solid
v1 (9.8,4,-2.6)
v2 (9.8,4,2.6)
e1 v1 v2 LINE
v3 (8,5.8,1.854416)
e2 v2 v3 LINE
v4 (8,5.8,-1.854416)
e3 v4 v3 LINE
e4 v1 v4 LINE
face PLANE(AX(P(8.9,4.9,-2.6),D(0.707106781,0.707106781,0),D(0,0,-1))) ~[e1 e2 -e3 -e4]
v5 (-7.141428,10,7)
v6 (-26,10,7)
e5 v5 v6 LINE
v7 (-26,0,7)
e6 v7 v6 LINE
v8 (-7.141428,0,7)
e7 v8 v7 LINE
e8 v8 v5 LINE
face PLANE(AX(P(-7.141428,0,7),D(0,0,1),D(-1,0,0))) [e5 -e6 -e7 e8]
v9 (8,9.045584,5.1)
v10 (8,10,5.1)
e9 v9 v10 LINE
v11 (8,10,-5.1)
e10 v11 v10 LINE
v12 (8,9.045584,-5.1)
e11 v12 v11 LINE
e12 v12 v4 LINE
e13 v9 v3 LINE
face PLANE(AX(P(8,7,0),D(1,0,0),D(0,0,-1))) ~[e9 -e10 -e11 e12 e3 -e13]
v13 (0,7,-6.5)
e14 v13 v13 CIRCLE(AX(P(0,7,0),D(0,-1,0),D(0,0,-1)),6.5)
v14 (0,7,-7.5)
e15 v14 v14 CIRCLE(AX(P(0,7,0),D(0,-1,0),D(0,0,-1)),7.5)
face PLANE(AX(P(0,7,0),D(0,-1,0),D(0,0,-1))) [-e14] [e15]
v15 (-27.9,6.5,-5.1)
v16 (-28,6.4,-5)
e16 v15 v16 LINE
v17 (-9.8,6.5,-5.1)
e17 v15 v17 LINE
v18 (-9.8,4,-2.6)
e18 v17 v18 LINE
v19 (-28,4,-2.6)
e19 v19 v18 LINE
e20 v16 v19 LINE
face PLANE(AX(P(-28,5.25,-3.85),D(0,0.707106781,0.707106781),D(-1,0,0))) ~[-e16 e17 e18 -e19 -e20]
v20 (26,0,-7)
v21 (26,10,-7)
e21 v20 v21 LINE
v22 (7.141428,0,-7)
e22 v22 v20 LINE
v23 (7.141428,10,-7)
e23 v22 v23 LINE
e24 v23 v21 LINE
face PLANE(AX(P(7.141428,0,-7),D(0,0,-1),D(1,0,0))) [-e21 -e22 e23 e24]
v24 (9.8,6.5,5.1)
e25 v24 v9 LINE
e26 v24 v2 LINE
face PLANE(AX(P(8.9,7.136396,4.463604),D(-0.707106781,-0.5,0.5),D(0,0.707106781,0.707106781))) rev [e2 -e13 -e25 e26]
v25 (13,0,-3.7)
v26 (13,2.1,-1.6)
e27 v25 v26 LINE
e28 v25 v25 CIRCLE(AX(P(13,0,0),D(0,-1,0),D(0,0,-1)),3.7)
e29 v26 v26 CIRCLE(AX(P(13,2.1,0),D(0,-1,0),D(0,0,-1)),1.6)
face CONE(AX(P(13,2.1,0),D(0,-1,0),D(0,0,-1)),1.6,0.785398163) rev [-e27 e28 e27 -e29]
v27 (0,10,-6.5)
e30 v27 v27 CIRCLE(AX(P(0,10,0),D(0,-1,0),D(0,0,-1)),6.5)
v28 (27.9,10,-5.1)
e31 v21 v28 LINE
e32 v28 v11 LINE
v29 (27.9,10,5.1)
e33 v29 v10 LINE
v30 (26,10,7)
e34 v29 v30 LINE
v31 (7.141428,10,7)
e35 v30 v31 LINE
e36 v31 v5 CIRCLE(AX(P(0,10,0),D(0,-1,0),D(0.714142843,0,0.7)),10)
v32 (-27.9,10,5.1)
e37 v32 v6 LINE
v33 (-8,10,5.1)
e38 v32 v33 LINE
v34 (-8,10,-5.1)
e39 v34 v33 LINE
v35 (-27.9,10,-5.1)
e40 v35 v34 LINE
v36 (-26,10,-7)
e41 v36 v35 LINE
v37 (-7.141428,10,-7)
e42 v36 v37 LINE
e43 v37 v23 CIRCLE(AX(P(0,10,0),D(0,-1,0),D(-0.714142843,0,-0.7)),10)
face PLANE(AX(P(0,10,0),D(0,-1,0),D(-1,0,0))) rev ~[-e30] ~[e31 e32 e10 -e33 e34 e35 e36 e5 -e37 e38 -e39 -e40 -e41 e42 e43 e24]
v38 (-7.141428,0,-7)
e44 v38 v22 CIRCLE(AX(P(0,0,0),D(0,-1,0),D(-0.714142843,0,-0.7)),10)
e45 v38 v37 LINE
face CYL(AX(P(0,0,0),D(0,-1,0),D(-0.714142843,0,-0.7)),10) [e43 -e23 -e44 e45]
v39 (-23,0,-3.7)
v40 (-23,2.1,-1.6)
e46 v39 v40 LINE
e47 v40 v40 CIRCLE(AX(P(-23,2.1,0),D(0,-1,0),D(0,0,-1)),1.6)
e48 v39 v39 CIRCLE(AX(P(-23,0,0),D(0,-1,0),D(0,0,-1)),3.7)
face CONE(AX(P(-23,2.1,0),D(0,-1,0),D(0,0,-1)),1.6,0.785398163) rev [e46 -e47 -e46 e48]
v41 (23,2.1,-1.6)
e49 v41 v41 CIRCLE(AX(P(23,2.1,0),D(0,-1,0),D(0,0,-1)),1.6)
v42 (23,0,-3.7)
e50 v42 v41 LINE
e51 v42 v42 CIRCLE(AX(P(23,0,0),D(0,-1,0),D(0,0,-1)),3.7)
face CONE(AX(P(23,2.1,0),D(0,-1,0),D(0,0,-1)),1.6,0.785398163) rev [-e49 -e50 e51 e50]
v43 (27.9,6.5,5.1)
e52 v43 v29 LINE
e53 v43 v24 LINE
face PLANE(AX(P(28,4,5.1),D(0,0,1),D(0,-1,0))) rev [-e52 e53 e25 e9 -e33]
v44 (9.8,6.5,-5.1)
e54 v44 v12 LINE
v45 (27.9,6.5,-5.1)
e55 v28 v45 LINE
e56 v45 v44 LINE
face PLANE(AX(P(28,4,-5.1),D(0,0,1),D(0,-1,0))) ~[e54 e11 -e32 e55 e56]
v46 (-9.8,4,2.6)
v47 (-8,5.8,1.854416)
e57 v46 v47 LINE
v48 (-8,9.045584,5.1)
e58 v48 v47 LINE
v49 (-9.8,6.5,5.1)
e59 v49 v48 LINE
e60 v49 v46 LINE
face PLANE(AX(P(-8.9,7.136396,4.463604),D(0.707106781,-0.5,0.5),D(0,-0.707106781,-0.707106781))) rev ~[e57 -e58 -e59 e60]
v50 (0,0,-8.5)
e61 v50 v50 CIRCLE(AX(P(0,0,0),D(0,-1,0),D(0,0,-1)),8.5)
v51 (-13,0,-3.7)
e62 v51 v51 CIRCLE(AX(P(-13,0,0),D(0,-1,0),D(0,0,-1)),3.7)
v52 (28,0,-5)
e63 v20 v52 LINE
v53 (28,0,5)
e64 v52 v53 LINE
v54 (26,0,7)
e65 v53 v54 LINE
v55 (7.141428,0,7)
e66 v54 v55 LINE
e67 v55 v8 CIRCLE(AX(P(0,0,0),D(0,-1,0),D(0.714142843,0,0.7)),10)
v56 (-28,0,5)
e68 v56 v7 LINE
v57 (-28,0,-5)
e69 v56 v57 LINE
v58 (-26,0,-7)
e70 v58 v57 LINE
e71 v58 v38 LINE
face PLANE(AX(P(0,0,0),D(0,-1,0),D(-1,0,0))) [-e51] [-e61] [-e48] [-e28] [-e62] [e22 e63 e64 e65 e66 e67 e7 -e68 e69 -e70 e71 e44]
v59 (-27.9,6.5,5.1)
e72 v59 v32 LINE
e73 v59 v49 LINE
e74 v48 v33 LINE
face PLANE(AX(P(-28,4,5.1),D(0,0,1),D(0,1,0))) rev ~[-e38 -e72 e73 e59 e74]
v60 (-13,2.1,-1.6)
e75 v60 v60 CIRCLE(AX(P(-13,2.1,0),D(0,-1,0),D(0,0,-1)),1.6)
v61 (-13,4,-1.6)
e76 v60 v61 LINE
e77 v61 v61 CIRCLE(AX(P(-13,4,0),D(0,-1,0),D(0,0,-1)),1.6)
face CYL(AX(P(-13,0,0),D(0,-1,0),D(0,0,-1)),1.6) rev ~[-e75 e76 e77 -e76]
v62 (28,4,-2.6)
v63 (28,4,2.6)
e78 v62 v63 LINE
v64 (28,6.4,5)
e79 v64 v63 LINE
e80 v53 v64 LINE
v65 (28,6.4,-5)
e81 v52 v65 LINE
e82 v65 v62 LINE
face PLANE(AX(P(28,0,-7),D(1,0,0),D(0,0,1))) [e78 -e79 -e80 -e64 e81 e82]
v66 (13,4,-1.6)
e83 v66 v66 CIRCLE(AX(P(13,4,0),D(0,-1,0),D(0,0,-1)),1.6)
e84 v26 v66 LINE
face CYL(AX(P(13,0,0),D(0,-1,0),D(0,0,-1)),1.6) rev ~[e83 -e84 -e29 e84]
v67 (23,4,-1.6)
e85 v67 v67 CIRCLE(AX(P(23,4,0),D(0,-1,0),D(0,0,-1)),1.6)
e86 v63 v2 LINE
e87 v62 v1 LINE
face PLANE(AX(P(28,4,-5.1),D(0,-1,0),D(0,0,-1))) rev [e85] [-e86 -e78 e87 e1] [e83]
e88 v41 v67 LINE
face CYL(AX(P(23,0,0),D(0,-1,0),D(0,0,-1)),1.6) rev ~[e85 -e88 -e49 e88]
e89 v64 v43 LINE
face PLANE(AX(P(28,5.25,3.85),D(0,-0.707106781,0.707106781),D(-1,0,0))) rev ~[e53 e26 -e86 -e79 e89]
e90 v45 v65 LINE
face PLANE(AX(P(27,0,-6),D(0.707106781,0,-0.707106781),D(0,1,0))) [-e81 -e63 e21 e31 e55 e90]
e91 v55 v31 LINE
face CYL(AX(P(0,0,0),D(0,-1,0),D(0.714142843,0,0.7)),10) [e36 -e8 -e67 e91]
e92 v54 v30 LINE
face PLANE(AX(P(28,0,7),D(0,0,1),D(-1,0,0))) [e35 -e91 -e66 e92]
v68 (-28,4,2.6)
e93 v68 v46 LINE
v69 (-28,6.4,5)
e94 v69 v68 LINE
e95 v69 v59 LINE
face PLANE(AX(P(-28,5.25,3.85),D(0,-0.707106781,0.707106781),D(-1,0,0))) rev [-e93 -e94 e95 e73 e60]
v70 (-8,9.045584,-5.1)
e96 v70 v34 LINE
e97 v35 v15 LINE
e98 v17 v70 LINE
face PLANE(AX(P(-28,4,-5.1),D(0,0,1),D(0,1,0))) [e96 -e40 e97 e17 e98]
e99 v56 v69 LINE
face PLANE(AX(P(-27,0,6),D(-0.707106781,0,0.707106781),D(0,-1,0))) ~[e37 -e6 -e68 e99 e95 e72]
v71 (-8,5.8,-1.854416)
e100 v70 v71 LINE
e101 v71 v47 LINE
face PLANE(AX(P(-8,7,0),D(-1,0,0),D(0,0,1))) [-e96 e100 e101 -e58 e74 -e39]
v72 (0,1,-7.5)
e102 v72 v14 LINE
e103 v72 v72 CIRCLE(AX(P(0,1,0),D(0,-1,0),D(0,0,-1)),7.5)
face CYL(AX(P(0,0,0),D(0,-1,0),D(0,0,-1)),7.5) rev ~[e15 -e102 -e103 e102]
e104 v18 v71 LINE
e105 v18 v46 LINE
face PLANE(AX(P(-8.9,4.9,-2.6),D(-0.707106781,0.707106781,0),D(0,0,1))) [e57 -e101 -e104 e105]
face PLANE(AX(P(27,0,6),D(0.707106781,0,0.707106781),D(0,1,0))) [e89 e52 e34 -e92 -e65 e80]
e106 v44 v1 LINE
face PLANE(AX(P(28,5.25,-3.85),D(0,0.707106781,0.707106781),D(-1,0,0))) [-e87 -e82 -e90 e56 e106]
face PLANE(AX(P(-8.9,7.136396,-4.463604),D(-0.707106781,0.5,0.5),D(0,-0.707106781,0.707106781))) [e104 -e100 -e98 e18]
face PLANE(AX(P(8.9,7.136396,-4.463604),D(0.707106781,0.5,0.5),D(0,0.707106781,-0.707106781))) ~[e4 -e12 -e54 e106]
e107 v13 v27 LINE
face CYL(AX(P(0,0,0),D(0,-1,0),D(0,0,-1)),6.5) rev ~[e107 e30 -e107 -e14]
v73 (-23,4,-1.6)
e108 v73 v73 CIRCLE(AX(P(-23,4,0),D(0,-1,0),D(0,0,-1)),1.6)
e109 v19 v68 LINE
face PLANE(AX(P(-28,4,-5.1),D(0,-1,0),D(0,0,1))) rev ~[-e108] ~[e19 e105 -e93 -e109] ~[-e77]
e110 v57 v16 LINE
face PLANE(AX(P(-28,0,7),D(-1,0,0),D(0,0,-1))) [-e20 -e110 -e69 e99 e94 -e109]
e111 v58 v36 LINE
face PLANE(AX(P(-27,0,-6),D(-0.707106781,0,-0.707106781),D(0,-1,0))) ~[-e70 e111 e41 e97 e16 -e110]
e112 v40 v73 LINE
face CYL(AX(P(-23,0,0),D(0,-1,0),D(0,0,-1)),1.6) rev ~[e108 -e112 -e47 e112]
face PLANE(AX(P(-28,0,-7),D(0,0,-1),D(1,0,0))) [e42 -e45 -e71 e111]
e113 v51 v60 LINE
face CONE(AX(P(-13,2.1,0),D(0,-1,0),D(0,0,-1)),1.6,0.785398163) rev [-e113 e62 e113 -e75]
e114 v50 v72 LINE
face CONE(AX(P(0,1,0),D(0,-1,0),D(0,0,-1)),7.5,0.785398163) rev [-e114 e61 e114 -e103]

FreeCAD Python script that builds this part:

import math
import FreeCAD as App
import Part
import Sketcher


def edges_at(feature, points):
    """Names of the edges that pass closest to the given points."""
    edges = feature.Shape.Edges
    near = lambda p: min(range(len(edges)), key=lambda i: edges[i].distToShape(Part.Vertex(*p))[0])
    return sorted({f"Edge{near(p) + 1}" for p in points})


def add_polygon(sketch, points):
    """Adds a closed chain of lines whose ends are joined by coincident constraints."""
    first, n = sketch.GeometryCount, len(points)
    for a, b in zip(points, points[1:] + points[:1]):
        sketch.addGeometry(Part.LineSegment(App.Vector(*a, 0), App.Vector(*b, 0)), False)
    for i in range(n):
        sketch.addConstraint(Sketcher.Constraint("Coincident", first + i, 2, first + (i + 1) % n, 1))

doc = App.newDocument("Part")
params = doc.addObject("Spreadsheet::Sheet", "Params")
for row, (alias, value) in enumerate([
    ("sketch1_radius", "10 mm"),
    ("sketch1_height", "14 mm"),
    ("pad1_length", "10 mm"),
    ("sketch2_width", "6 mm"),
    ("sketch2_height", "10.2 mm"),
    ("pocket1_length", "20 mm"),
    ("chamfer_size", "2.5 mm"),
    ("chamfer2_size", "1.8 mm"),
    ("chamfer3_size", "2.5 mm"),
    ("chamfer4_size", "1.8 mm"),
    ("sketch3_diameter", "13 mm"),
    ("sketch4_diameter", "15 mm"),
    ("pocket3_length", "7 mm"),
    ("chamfer5_size", "1 mm"),
    ("sketch5_diameter", "3.2 mm"),
    ("pocket4_length", "7 mm"),
    ("chamfer6_size", "2.1 mm"),
    ("chamfer7_size", "2 mm"),
], start=1):
    params.set(f"A{row}", alias)
    params.set(f"B{row}", "=" + value)
    params.setAlias(f"B{row}", alias)

body = doc.addObject("PartDesign::Body", "Body")

# Sketch on XZ plane
sketch1 = doc.addObject("Sketcher::SketchObject", "Sketch")
body.addObject(sketch1)
sketch1.AttachmentSupport = (doc.XZ_Plane, [""])
sketch1.MapMode = "FlatFace"
sketch1.addGeometry(Part.LineSegment(App.Vector(28, -7, 0), App.Vector(7, -7, 0)), False)
sketch1.addGeometry(Part.ArcOfCircle(Part.Circle(App.Vector(0, 0, 0), App.Vector(0, 0, 1), 10), math.radians(-136), math.radians(-44)), False)
sketch1.addGeometry(Part.LineSegment(App.Vector(-7, -7, 0), App.Vector(-28, -7, 0)), False)
sketch1.addGeometry(Part.LineSegment(App.Vector(-28, -7, 0), App.Vector(-28, 7, 0)), False)
sketch1.addGeometry(Part.LineSegment(App.Vector(-28, 7, 0), App.Vector(-7, 7, 0)), False)
sketch1.addGeometry(Part.ArcOfCircle(Part.Circle(App.Vector(0, 0, 0), App.Vector(0, 0, 1), 10), math.radians(44), math.radians(136)), False)
sketch1.addGeometry(Part.LineSegment(App.Vector(7, 7, 0), App.Vector(28, 7, 0)), False)
sketch1.addGeometry(Part.LineSegment(App.Vector(28, 7, 0), App.Vector(28, -7, 0)), False)
sketch1.addConstraint(Sketcher.Constraint("Coincident", 0, 2, 1, 2))
sketch1.addConstraint(Sketcher.Constraint("Coincident", 1, 1, 2, 1))
sketch1.addConstraint(Sketcher.Constraint("Coincident", 2, 2, 3, 1))
sketch1.addConstraint(Sketcher.Constraint("Coincident", 3, 2, 4, 1))
sketch1.addConstraint(Sketcher.Constraint("Coincident", 4, 2, 5, 2))
sketch1.addConstraint(Sketcher.Constraint("Coincident", 5, 1, 6, 1))
sketch1.addConstraint(Sketcher.Constraint("Coincident", 6, 2, 7, 1))
sketch1.addConstraint(Sketcher.Constraint("Coincident", 7, 2, 0, 1))
sketch1.addConstraint(Sketcher.Constraint("Horizontal", 0))
sketch1.addConstraint(Sketcher.Constraint("Horizontal", 2))
sketch1.addConstraint(Sketcher.Constraint("Vertical", 3))
sketch1.addConstraint(Sketcher.Constraint("Horizontal", 4))
sketch1.addConstraint(Sketcher.Constraint("Horizontal", 6))
sketch1.addConstraint(Sketcher.Constraint("Vertical", 7))
sketch1.addConstraint(Sketcher.Constraint("Coincident", 1, 3, -1, 1))
sketch1.addConstraint(Sketcher.Constraint("Coincident", 5, 3, -1, 1))
sketch1.addConstraint(Sketcher.Constraint("Equal", 1, 5))
sketch1.addConstraint(Sketcher.Constraint("Symmetric", 2, 2, 6, 2, -1, 1))
sketch1.addConstraint(Sketcher.Constraint("Horizontal", 0, 2, 1, 1))
sketch1.addConstraint(Sketcher.Constraint("Horizontal", 4, 2, 5, 1))
sketch1.addConstraint(Sketcher.Constraint("Radius", 1, 10.0))
sketch1.addConstraint(Sketcher.Constraint("DistanceY", 3, 1, 3, 2, 14.0))
sketch1.addConstraint(Sketcher.Constraint("DistanceX", 2, 2, -1, 1, 28.0))
sketch1.setExpression("Constraints[20]", "Params.sketch1_radius")
sketch1.setExpression("Constraints[21]", "Params.sketch1_height")
pad1 = doc.addObject("PartDesign::Pad", "Pad")
body.addObject(pad1)
pad1.Profile = sketch1
pad1.setExpression("Length", "Params.pad1_length")
pad1.Reversed = True

# Sketch on YZ plane
sketch2 = doc.addObject("Sketcher::SketchObject", "Sketch001")
body.addObject(sketch2)
sketch2.AttachmentSupport = (doc.YZ_Plane, [""])
sketch2.MapMode = "FlatFace"
sketch2.AttachmentOffset = App.Placement(App.Vector(0, 0, -28), App.Rotation())
add_polygon(sketch2, [(10, -5), (4, -5), (4, 5), (10, 5)])  # lines 0-3
sketch2.addConstraint(Sketcher.Constraint("Horizontal", 0))
sketch2.addConstraint(Sketcher.Constraint("Vertical", 1))
sketch2.addConstraint(Sketcher.Constraint("Horizontal", 2))
sketch2.addConstraint(Sketcher.Constraint("Vertical", 3))
sketch2.addConstraint(Sketcher.Constraint("DistanceX", 0, 2, 0, 1, 6.0))
sketch2.addConstraint(Sketcher.Constraint("DistanceY", 1, 1, 1, 2, 10.2))
sketch2.addConstraint(Sketcher.Constraint("DistanceX", -1, 1, 0, 2, 4.0))
sketch2.addConstraint(Sketcher.Constraint("DistanceY", 0, 2, -1, 1, 5.1))
sketch2.setExpression("Constraints[8]", "Params.sketch2_width")
sketch2.setExpression("Constraints[9]", "Params.sketch2_height")
pocket1 = doc.addObject("PartDesign::Pocket", "Pocket")
body.addObject(pocket1)
pocket1.Profile = sketch2
pocket1.setExpression("Length", "Params.pocket1_length")
pocket1.Reversed = True
doc.recompute()

chamfer = doc.addObject("PartDesign::Chamfer", "Chamfer")
body.addObject(chamfer)
chamfer.Base = (pocket1, edges_at(pocket1, [(-18, 4, -5.1), (-18, 4, 5.1)]))
chamfer.setExpression("Size", "Params.chamfer_size")
doc.recompute()

chamfer2 = doc.addObject("PartDesign::Chamfer", "Chamfer001")
body.addObject(chamfer2)
chamfer2.Base = (chamfer, edges_at(chamfer, [(-8, 4, 0), (-8, 5.25, -3.85), (-8, 5.25, 3.85)]))
chamfer2.setExpression("Size", "Params.chamfer2_size")
doc.recompute()

mirrored = doc.addObject("PartDesign::Mirrored", "Mirrored")
body.addObject(mirrored)
mirrored.Originals = [pocket1]
mirrored.MirrorPlane = (doc.YZ_Plane, [""])
body.Tip = mirrored
doc.recompute()

chamfer3 = doc.addObject("PartDesign::Chamfer", "Chamfer002")
body.addObject(chamfer3)
chamfer3.Base = (mirrored, edges_at(mirrored, [(18, 4, -5.1), (18, 4, 5.1)]))
chamfer3.setExpression("Size", "Params.chamfer3_size")
doc.recompute()

chamfer4 = doc.addObject("PartDesign::Chamfer", "Chamfer003")
body.addObject(chamfer4)
chamfer4.Base = (chamfer3, edges_at(chamfer3, [(8, 4, 0), (8, 5.25, -3.85), (8, 5.25, 3.85)]))
chamfer4.setExpression("Size", "Params.chamfer4_size")

# Sketch on XZ plane
sketch3 = doc.addObject("Sketcher::SketchObject", "Sketch002")
body.addObject(sketch3)
sketch3.AttachmentSupport = (doc.XZ_Plane, [""])
sketch3.MapMode = "FlatFace"
sketch3.addGeometry(Part.Circle(App.Vector(0, 0, 0), App.Vector(0, 0, 1), 6), False)
sketch3.addConstraint(Sketcher.Constraint("Coincident", 0, 3, -1, 1))
sketch3.addConstraint(Sketcher.Constraint("Diameter", 0, 13.0))
sketch3.setExpression("Constraints[1]", "Params.sketch3_diameter")
pocket2 = doc.addObject("PartDesign::Pocket", "Pocket001")
body.addObject(pocket2)
pocket2.Profile = sketch3
pocket2.Type = "ThroughAll"

# Sketch on XZ plane
sketch4 = doc.addObject("Sketcher::SketchObject", "Sketch003")
body.addObject(sketch4)
sketch4.AttachmentSupport = (doc.XZ_Plane, [""])
sketch4.MapMode = "FlatFace"
sketch4.addGeometry(Part.Circle(App.Vector(0, 0, 0), App.Vector(0, 0, 1), 8), False)
sketch4.addConstraint(Sketcher.Constraint("Coincident", 0, 3, -1, 1))
sketch4.addConstraint(Sketcher.Constraint("Diameter", 0, 15.0))
sketch4.setExpression("Constraints[1]", "Params.sketch4_diameter")
pocket3 = doc.addObject("PartDesign::Pocket", "Pocket002")
body.addObject(pocket3)
pocket3.Profile = sketch4
pocket3.setExpression("Length", "Params.pocket3_length")
doc.recompute()

chamfer5 = doc.addObject("PartDesign::Chamfer", "Chamfer004")
body.addObject(chamfer5)
chamfer5.Base = (pocket3, edges_at(pocket3, [(0, 0, 7.5)]))
chamfer5.setExpression("Size", "Params.chamfer5_size")

# Sketch on XZ plane
sketch5 = doc.addObject("Sketcher::SketchObject", "Sketch004")
body.addObject(sketch5)
sketch5.AttachmentSupport = (doc.XZ_Plane, [""])
sketch5.MapMode = "FlatFace"
sketch5.addGeometry(Part.Circle(App.Vector(-23, 0, 0), App.Vector(0, 0, 1), 1.6), False)
sketch5.addGeometry(Part.Circle(App.Vector(-13, 0, 0), App.Vector(0, 0, 1), 1.6), False)
sketch5.addGeometry(Part.Circle(App.Vector(13, 0, 0), App.Vector(0, 0, 1), 1.6), False)
sketch5.addGeometry(Part.Circle(App.Vector(23, 0, 0), App.Vector(0, 0, 1), 1.6), False)
sketch5.addConstraint(Sketcher.Constraint("Equal", 0, 1))
sketch5.addConstraint(Sketcher.Constraint("Equal", 1, 2))
sketch5.addConstraint(Sketcher.Constraint("Equal", 2, 3))
sketch5.addConstraint(Sketcher.Constraint("Symmetric", 1, 3, 2, 3, -1, 1))
sketch5.addConstraint(Sketcher.Constraint("Symmetric", 0, 3, 3, 3, -1, 1))
sketch5.addConstraint(Sketcher.Constraint("PointOnObject", 0, 3, -1))
sketch5.addConstraint(Sketcher.Constraint("PointOnObject", 1, 3, -1))
sketch5.addConstraint(Sketcher.Constraint("Diameter", 0, 3.2))
sketch5.addConstraint(Sketcher.Constraint("DistanceX", 0, 3, -1, 1, 23.0))
sketch5.addConstraint(Sketcher.Constraint("DistanceX", 1, 3, -1, 1, 13.0))
sketch5.setExpression("Constraints[7]", "Params.sketch5_diameter")
pocket4 = doc.addObject("PartDesign::Pocket", "Pocket003")
body.addObject(pocket4)
pocket4.Profile = sketch5
pocket4.setExpression("Length", "Params.pocket4_length")
doc.recompute()

chamfer6 = doc.addObject("PartDesign::Chamfer", "Chamfer005")
body.addObject(chamfer6)
chamfer6.Base = (pocket4, edges_at(pocket4, [
    (-23, 0, 1.6),
    (-13, 0, 1.6),
    (13, 0, 1.6),
    (23, 0, 1.6),
]))
chamfer6.setExpression("Size", "Params.chamfer6_size")
doc.recompute()

chamfer7 = doc.addObject("PartDesign::Chamfer", "Chamfer006")
body.addObject(chamfer7)
chamfer7.Base = (chamfer6, edges_at(chamfer6, [
    (28, 5, -7),
    (28, 5, 7),
    (-28, 5, -7),
    (-28, 5, 7),
]))
chamfer7.setExpression("Size", "Params.chamfer7_size")

doc.recompute()
